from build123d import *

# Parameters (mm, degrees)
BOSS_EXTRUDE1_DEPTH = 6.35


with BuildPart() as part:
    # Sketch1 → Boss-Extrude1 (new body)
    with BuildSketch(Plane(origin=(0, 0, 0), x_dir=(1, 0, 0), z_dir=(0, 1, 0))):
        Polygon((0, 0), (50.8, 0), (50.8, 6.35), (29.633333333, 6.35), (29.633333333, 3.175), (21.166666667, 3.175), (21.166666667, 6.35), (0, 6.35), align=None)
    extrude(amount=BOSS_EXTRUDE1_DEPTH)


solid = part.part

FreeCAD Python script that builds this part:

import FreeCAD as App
import Part
import Sketcher

V = App.Vector
Q = App.Units.Quantity


def add_polygon(sketch, points):
    """Adds a closed chain of lines whose ends are joined by coincident constraints."""
    first, n = sketch.GeometryCount, len(points)
    for a, b in zip(points, points[1:] + points[:1]):
        sketch.addGeometry(Part.LineSegment(App.Vector(*a, 0), App.Vector(*b, 0)), False)
    for i in range(n):
        sketch.addConstraint(Sketcher.Constraint("Coincident", first + i, 2, first + (i + 1) % n, 1))

doc = App.newDocument("Part")
params = doc.addObject("Spreadsheet::Sheet", "Params")
for row, (alias, value) in enumerate([
    ("sketch1_width", "2 in"),
    ("sketch1_height", "0.25 in"),
    ("sketch1_height2", "0.125 in"),
    ("pad1_length", "0.25 in"),
], start=1):
    params.set(f"A{row}", alias)
    params.set(f"B{row}", "=" + value)
    params.setAlias(f"B{row}", alias)

body = doc.addObject("PartDesign::Body", "Body")

# Sketch on XZ plane
sketch1 = body.newObject("Sketcher::SketchObject", "Sketch")
sketch1.AttachmentSupport = (doc.getObject("XZ_Plane"), [""])
sketch1.MapMode = "FlatFace"
add_polygon(sketch1, [(0, 0), (50.8, 0), (50.8, -6.3), (29.6, -6.3), (29.6, -3.2), (21.2, -3.2), (21.2, -6.3), (0, -6.3)])  # lines 0-7
sketch1.addConstraint([
    Sketcher.Constraint("Horizontal", 0),
    Sketcher.Constraint("Vertical", 1),
    Sketcher.Constraint("Horizontal", 2),
    Sketcher.Constraint("Vertical", 3),
    Sketcher.Constraint("Horizontal", 4),
    Sketcher.Constraint("Vertical", 5),
    Sketcher.Constraint("Horizontal", 6),
    Sketcher.Constraint("Vertical", 7),
    Sketcher.Constraint("Coincident", 7, 2, -1, 1),
    Sketcher.Constraint("Horizontal", 2, 2, 5, 2),
    Sketcher.Constraint("Equal", 2, 6),
    Sketcher.Constraint("DistanceX", 0, 1, 0, 2, Q("2 in")),
    Sketcher.Constraint("DistanceY", 1, 2, 1, 1, Q("0.25 in")),
    Sketcher.Constraint("DistanceY", 3, 1, 3, 2, Q("0.125 in")),
    Sketcher.Constraint("DistanceX", 2, 2, 2, 1, 21.166667),
])
sketch1.setExpression("Constraints[19]", "Params.sketch1_width")
sketch1.setExpression("Constraints[20]", "Params.sketch1_height")
sketch1.setExpression("Constraints[21]", "Params.sketch1_height2")
pad1 = body.newObject("PartDesign::Pad", "Pad")
pad1.Profile = sketch1
pad1.setExpression("Length", "Params.pad1_length")
pad1.Reversed = True

doc.recompute()
